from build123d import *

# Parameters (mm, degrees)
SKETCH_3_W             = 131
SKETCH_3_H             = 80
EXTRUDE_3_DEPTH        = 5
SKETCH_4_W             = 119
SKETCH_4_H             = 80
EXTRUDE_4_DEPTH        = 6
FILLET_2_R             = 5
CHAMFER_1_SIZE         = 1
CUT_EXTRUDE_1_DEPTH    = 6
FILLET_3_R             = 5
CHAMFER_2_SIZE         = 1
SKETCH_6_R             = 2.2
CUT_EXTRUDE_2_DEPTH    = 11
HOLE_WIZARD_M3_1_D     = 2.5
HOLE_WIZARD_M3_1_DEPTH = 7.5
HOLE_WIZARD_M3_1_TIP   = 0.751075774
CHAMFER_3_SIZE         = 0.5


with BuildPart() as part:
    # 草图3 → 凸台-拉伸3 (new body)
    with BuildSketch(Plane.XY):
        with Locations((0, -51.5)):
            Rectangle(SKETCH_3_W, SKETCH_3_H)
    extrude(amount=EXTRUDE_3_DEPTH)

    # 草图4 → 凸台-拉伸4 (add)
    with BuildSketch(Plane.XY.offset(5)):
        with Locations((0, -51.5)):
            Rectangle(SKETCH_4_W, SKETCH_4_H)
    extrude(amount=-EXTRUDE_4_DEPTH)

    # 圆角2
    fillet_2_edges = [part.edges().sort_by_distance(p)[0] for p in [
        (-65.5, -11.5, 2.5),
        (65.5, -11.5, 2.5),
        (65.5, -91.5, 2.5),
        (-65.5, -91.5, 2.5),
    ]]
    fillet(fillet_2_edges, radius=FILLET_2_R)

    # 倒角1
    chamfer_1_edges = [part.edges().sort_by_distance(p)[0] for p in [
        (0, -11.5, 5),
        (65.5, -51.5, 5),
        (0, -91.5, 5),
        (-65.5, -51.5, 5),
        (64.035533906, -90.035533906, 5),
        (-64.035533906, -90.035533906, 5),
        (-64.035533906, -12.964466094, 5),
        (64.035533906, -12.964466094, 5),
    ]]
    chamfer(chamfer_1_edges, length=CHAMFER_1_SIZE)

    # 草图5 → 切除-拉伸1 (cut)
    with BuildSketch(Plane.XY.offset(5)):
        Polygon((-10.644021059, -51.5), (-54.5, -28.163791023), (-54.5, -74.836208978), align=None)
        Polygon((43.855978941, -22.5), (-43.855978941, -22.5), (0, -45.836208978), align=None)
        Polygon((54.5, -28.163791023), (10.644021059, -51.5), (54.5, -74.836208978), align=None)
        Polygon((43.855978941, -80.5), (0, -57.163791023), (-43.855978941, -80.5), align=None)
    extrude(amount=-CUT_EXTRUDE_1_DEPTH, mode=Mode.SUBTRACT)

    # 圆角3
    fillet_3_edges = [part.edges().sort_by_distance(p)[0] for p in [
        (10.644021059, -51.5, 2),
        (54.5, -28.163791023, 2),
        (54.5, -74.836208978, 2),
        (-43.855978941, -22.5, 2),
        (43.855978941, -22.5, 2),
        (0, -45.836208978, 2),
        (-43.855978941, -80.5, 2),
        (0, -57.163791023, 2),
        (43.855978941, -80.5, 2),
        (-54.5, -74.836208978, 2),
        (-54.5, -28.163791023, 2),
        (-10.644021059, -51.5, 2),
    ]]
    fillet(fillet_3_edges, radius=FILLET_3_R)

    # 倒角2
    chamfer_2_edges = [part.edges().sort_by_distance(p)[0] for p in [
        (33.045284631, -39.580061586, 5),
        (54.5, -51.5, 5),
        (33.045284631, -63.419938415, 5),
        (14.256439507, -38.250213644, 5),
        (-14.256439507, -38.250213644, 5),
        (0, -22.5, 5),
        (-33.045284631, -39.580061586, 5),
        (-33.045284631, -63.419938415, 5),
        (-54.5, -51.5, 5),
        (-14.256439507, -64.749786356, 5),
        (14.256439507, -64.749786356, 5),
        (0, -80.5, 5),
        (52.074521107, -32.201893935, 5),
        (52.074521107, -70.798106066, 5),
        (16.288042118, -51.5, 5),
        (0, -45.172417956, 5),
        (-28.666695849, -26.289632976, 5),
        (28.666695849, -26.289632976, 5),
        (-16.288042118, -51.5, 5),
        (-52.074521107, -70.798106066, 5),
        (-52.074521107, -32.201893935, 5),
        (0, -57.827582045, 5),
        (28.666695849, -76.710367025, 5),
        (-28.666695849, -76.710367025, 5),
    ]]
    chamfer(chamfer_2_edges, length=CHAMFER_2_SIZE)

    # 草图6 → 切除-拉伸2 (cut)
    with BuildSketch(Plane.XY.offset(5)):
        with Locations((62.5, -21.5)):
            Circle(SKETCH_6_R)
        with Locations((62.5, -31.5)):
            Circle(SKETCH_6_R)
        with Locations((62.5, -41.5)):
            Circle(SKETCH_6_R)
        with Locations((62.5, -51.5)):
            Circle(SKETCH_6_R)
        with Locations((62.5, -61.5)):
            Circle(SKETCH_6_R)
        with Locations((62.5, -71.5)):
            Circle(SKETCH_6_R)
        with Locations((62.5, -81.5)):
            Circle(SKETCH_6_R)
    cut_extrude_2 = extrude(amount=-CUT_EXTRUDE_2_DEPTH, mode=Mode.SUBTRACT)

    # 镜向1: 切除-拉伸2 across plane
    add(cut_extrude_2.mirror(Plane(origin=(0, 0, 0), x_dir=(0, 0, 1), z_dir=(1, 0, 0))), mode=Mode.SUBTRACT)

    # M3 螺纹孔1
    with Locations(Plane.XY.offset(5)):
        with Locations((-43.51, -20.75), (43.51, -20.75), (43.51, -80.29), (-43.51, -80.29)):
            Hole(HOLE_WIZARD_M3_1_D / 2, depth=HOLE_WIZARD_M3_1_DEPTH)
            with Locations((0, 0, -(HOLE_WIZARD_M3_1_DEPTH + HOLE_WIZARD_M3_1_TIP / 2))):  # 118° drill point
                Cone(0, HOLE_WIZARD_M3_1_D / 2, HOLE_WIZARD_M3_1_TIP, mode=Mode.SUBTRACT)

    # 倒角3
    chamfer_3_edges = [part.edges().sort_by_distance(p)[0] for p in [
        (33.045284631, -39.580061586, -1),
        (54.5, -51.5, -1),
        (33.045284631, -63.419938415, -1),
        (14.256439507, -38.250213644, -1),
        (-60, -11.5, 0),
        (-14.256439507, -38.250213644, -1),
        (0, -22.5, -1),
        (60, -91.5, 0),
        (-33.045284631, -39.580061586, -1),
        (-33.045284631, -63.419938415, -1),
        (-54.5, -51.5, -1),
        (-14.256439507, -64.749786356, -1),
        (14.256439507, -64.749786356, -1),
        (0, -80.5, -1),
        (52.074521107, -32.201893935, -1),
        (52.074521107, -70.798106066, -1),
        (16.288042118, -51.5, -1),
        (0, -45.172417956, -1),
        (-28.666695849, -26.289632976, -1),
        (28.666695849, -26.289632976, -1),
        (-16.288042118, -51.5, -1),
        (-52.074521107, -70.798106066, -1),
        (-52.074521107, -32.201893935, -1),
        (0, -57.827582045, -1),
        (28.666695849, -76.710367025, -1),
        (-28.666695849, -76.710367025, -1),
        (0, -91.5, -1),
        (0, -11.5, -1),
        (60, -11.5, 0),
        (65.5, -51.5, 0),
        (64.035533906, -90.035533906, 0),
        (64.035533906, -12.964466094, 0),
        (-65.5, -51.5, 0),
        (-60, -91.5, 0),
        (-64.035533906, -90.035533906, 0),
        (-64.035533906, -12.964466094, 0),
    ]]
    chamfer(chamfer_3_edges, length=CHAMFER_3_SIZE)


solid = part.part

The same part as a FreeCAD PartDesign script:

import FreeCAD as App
import Part
import Sketcher
from FreeCAD import Vector


def edges_at(feature, points):
    """Names of the edges that pass closest to the given points."""
    edges = feature.Shape.Edges
    near = lambda p: min(range(len(edges)), key=lambda i: edges[i].distToShape(Part.Vertex(*p))[0])
    return sorted({f"Edge{near(p) + 1}" for p in points})


def add_polygon(sketch, points):
    """Adds a closed chain of lines whose ends are joined by coincident constraints."""
    first, n = sketch.GeometryCount, len(points)
    for a, b in zip(points, points[1:] + points[:1]):
        sketch.addGeometry(Part.LineSegment(App.Vector(*a, 0), App.Vector(*b, 0)), False)
    for i in range(n):
        sketch.addConstraint(Sketcher.Constraint("Coincident", first + i, 2, first + (i + 1) % n, 1))

doc = App.newDocument("Part")
body = doc.addObject("PartDesign::Body", "Body")

# Sketch on XY plane
sketch1 = doc.addObject("Sketcher::SketchObject", "Sketch")
body.addObject(sketch1)
sketch1.AttachmentSupport = (doc.XY_Plane, [""])
sketch1.MapMode = "FlatFace"
add_polygon(sketch1, [(-66, -12), (-66, -92), (66, -92), (66, -12)])  # lines 0-3
sketch1.addConstraint([
    Sketcher.Constraint("Vertical", 0),
    Sketcher.Constraint("Horizontal", 1),
    Sketcher.Constraint("Vertical", 2),
    Sketcher.Constraint("Horizontal", 3),
    Sketcher.Constraint("DistanceX", 1, 1, 1, 2, 131.0),
    Sketcher.Constraint("DistanceY", 0, 2, 0, 1, 80.0),
    Sketcher.Constraint("DistanceX", 0, 2, -1, 1, 65.5),
    Sketcher.Constraint("DistanceY", 0, 2, -1, 1, 91.5),
])
pad1 = doc.addObject("PartDesign::Pad", "Pad")
body.addObject(pad1)
pad1.Profile = sketch1
pad1.Length = 5

# Sketch on XY plane
sketch2 = doc.addObject("Sketcher::SketchObject", "Sketch001")
body.addObject(sketch2)
sketch2.AttachmentSupport = (doc.XY_Plane, [""])
sketch2.MapMode = "FlatFace"
sketch2.AttachmentOffset = App.Placement(Vector(0, 0, 5), App.Rotation())
add_polygon(sketch2, [(-60, -12), (-60, -92), (60, -92), (60, -12)])  # lines 0-3
sketch2.addConstraint([
    Sketcher.Constraint("Vertical", 0),
    Sketcher.Constraint("Horizontal", 1),
    Sketcher.Constraint("Vertical", 2),
    Sketcher.Constraint("Horizontal", 3),
    Sketcher.Constraint("DistanceX", 1, 1, 1, 2, 119.0),
    Sketcher.Constraint("DistanceY", 0, 2, 0, 1, 80.0),
    Sketcher.Constraint("DistanceX", 0, 2, -1, 1, 59.5),
    Sketcher.Constraint("DistanceY", 0, 2, -1, 1, 91.5),
])
pad2 = doc.addObject("PartDesign::Pad", "Pad001")
body.addObject(pad2)
pad2.Profile = sketch2
pad2.Length = 6
pad2.Reversed = True
doc.recompute()

fillet = doc.addObject("PartDesign::Fillet", "Fillet")
body.addObject(fillet)
fillet.Base = (pad2, edges_at(pad2, [
    (-65.5, -11.5, 2.5),
    (65.5, -11.5, 2.5),
    (65.5, -91.5, 2.5),
    (-65.5, -91.5, 2.5),
]))
fillet.Radius = 5
doc.recompute()

chamfer = doc.addObject("PartDesign::Chamfer", "Chamfer")
body.addObject(chamfer)
chamfer.Base = (fillet, edges_at(fillet, [
    (0, -11.5, 5),
    (65.5, -51.5, 5),
    (0, -91.5, 5),
    (-65.5, -51.5, 5),
    (64.036, -90.036, 5),
    (-64.036, -90.036, 5),
    (-64.036, -12.964, 5),
    (64.036, -12.964, 5),
]))
chamfer.Size = 1

# Sketch on XY plane
sketch3 = doc.addObject("Sketcher::SketchObject", "Sketch002")
body.addObject(sketch3)
sketch3.AttachmentSupport = (doc.XY_Plane, [""])
sketch3.MapMode = "FlatFace"
sketch3.AttachmentOffset = App.Placement(Vector(0, 0, 5), App.Rotation())
add_polygon(sketch3, [(-11, -52), (-54, -28), (-54, -75)])  # lines 0-2
add_polygon(sketch3, [(44, -22), (-44, -22), (0, -46)])  # lines 3-5
add_polygon(sketch3, [(54, -28), (11, -52), (54, -75)])  # lines 6-8
add_polygon(sketch3, [(44, -80), (0, -57), (-44, -80)])  # lines 9-11
sketch3.addConstraint([
    Sketcher.Constraint("Vertical", 1),
    Sketcher.Constraint("Horizontal", 3),
    Sketcher.Constraint("Vertical", 8),
    Sketcher.Constraint("Horizontal", 11),
    Sketcher.Constraint("Symmetric", 2, 2, 6, 2, -2),
    Sketcher.Constraint("Symmetric", 1, 2, 7, 2, -2),
    Sketcher.Constraint("PointOnObject", 4, 2, -2),
    Sketcher.Constraint("PointOnObject", 9, 2, -2),
    Sketcher.Constraint("Parallel", 0, 4),
    Sketcher.Constraint("Parallel", 2, 5),
    Sketcher.Constraint("Parallel", 5, 6),
    Sketcher.Constraint("Parallel", 4, 7),
    Sketcher.Constraint("Parallel", 7, 9),
    Sketcher.Constraint("Parallel", 6, 10),
    Sketcher.Constraint("Vertical", 3, 2, 10, 2),
    Sketcher.Constraint("Equal", 2, 4),
    Sketcher.Constraint("DistanceY", 2, 2, 3, 2, 29.0),
    Sketcher.Constraint("DistanceX", 1, 2, 7, 2, 109.0),
    Sketcher.Constraint("DistanceY", 10, 2, 2, 2, 29.0),
    Sketcher.Constraint("DistanceY", 2, 2, -1, 1, 51.5),
    Sketcher.Constraint("Distance", 0, 49.67822),
    Sketcher.Constraint("DistanceX", 3, 2, 3, 1, 87.711958),
])
pocket1 = doc.addObject("PartDesign::Pocket", "Pocket")
body.addObject(pocket1)
pocket1.Profile = sketch3
pocket1.Length = 6
doc.recompute()

fillet2 = doc.addObject("PartDesign::Fillet", "Fillet001")
body.addObject(fillet2)
fillet2.Base = (pocket1, edges_at(pocket1, [
    (10.644, -51.5, 2),
    (54.5, -28.164, 2),
    (54.5, -74.836, 2),
    (-43.856, -22.5, 2),
    (43.856, -22.5, 2),
    (0, -45.836, 2),
    (-43.856, -80.5, 2),
    (0, -57.164, 2),
    (43.856, -80.5, 2),
    (-54.5, -74.836, 2),
    (-54.5, -28.164, 2),
    (-10.644, -51.5, 2),
]))
fillet2.Radius = 5
doc.recompute()

chamfer2 = doc.addObject("PartDesign::Chamfer", "Chamfer001")
body.addObject(chamfer2)
chamfer2.Base = (fillet2, edges_at(fillet2, [
    (33.045, -39.58, 5),
    (54.5, -51.5, 5),
    (33.045, -63.42, 5),
    (14.256, -38.25, 5),
    (-14.256, -38.25, 5),
    (0, -22.5, 5),
    (-33.045, -39.58, 5),
    (-33.045, -63.42, 5),
    (-54.5, -51.5, 5),
    (-14.256, -64.75, 5),
    (14.256, -64.75, 5),
    (0, -80.5, 5),
    (52.075, -32.202, 5),
    (52.075, -70.798, 5),
    (16.288, -51.5, 5),
    (0, -45.172, 5),
    (-28.667, -26.29, 5),
    (28.667, -26.29, 5),
    (-16.288, -51.5, 5),
    (-52.075, -70.798, 5),
    (-52.075, -32.202, 5),
    (0, -57.828, 5),
    (28.667, -76.71, 5),
    (-28.667, -76.71, 5),
]))
chamfer2.Size = 1

# Sketch on XY plane
sketch4 = doc.addObject("Sketcher::SketchObject", "Sketch003")
body.addObject(sketch4)
sketch4.AttachmentSupport = (doc.XY_Plane, [""])
sketch4.MapMode = "FlatFace"
sketch4.AttachmentOffset = App.Placement(Vector(0, 0, 5), App.Rotation())
sketch4.addGeometry([
    Part.Circle(Vector(62.5, -21.5, 0), Vector(0, 0, 1), 2.2),  # 0
    Part.Circle(Vector(62.5, -31.5, 0), Vector(0, 0, 1), 2.2),  # 1
    Part.Circle(Vector(62.5, -41.5, 0), Vector(0, 0, 1), 2.2),  # 2
    Part.Circle(Vector(62.5, -51.5, 0), Vector(0, 0, 1), 2.2),  # 3
    Part.Circle(Vector(62.5, -61.5, 0), Vector(0, 0, 1), 2.2),  # 4
    Part.Circle(Vector(62.5, -71.5, 0), Vector(0, 0, 1), 2.2),  # 5
    Part.Circle(Vector(62.5, -81.5, 0), Vector(0, 0, 1), 2.2),  # 6
], False)
sketch4.addConstraint([
    Sketcher.Constraint("Equal", 0, 1),
    Sketcher.Constraint("Equal", 1, 2),
    Sketcher.Constraint("Equal", 2, 3),
    Sketcher.Constraint("Equal", 3, 4),
    Sketcher.Constraint("Equal", 4, 5),
    Sketcher.Constraint("Equal", 5, 6),
    Sketcher.Constraint("Vertical", 0, 3, 1, 3),
    Sketcher.Constraint("Vertical", 1, 3, 2, 3),
    Sketcher.Constraint("Vertical", 2, 3, 3, 3),
    Sketcher.Constraint("Vertical", 3, 3, 4, 3),
    Sketcher.Constraint("Vertical", 4, 3, 5, 3),
    Sketcher.Constraint("Vertical", 5, 3, 6, 3),
    Sketcher.Constraint("Diameter", 0, 4.4),
    Sketcher.Constraint("DistanceY", 1, 3, 0, 3, 10.0),
    Sketcher.Constraint("DistanceY", 2, 3, 1, 3, 10.0),
    Sketcher.Constraint("DistanceY", 3, 3, 2, 3, 10.0),
    Sketcher.Constraint("DistanceY", 4, 3, 3, 3, 10.0),
    Sketcher.Constraint("DistanceY", 5, 3, 4, 3, 10.0),
    Sketcher.Constraint("DistanceY", 6, 3, 5, 3, 10.0),
    Sketcher.Constraint("DistanceX", -1, 1, 0, 3, 62.5),
    Sketcher.Constraint("DistanceY", 0, 3, -1, 1, 21.5),
])
pocket2 = doc.addObject("PartDesign::Pocket", "Pocket001")
body.addObject(pocket2)
pocket2.Profile = sketch4
pocket2.Length = 11
doc.recompute()

mirrored = doc.addObject("PartDesign::Mirrored", "Mirrored")
body.addObject(mirrored)
mirrored.Originals = [pocket2]
mirrored.MirrorPlane = (doc.YZ_Plane, [""])
body.Tip = mirrored

# Sketch on XY plane
sketch5 = doc.addObject("Sketcher::SketchObject", "Sketch004")
body.addObject(sketch5)
sketch5.AttachmentSupport = (doc.XY_Plane, [""])
sketch5.MapMode = "FlatFace"
sketch5.AttachmentOffset = App.Placement(Vector(0, 0, 5), App.Rotation())
sketch5.addGeometry([
    Part.Circle(Vector(-43.5, -20.8, 0), Vector(0, 0, 1), 1.2),
    Part.Circle(Vector(43.5, -20.8, 0), Vector(0, 0, 1), 1.2),
    Part.Circle(Vector(43.5, -80.3, 0), Vector(0, 0, 1), 1.2),
    Part.Circle(Vector(-43.5, -80.3, 0), Vector(0, 0, 1), 1.2),
], False)
sketch5.addConstraint([
    Sketcher.Constraint("Equal", 0, 1),
    Sketcher.Constraint("Equal", 1, 2),
    Sketcher.Constraint("Equal", 2, 3),
    Sketcher.Constraint("Symmetric", 0, 3, 1, 3, -2),
    Sketcher.Constraint("Symmetric", 2, 3, 3, 3, -2),
    Sketcher.Constraint("Vertical", 1, 3, 2, 3),
    Sketcher.Constraint("Diameter", 0, 2.5),
    Sketcher.Constraint("DistanceX", 0, 3, -1, 1, 43.51),
    Sketcher.Constraint("DistanceY", 0, 3, -1, 1, 20.75),
    Sketcher.Constraint("DistanceY", 2, 3, -1, 1, 80.29),
])
doc.recompute()
hole = doc.addObject("PartDesign::Hole", "Hole")
body.addObject(hole)
hole.Profile = sketch5
hole.ThreadType = "None"
hole.Diameter = 2.5
hole.DepthType = "Dimension"
hole.Depth = 7.5
hole.DrillPoint = "Angled"
hole.DrillPointAngle = 118
doc.recompute()

chamfer3 = doc.addObject("PartDesign::Chamfer", "Chamfer002")
body.addObject(chamfer3)
chamfer3.Base = (hole, edges_at(hole, [
    (33.045, -39.58, -1),
    (54.5, -51.5, -1),
    (33.045, -63.42, -1),
    (14.256, -38.25, -1),
    (-60, -11.5, 0),
    (-14.256, -38.25, -1),
    (0, -22.5, -1),
    (60, -91.5, 0),
    (-33.045, -39.58, -1),
    (-33.045, -63.42, -1),
    (-54.5, -51.5, -1),
    (-14.256, -64.75, -1),
    (14.256, -64.75, -1),
    (0, -80.5, -1),
    (52.075, -32.202, -1),
    (52.075, -70.798, -1),
    (16.288, -51.5, -1),
    (0, -45.172, -1),
    (-28.667, -26.29, -1),
    (28.667, -26.29, -1),
    (-16.288, -51.5, -1),
    (-52.075, -70.798, -1),
    (-52.075, -32.202, -1),
    (0, -57.828, -1),
    (28.667, -76.71, -1),
    (-28.667, -76.71, -1),
    (0, -91.5, -1),
    (0, -11.5, -1),
    (60, -11.5, 0),
    (65.5, -51.5, 0),
    (64.036, -90.036, 0),
    (64.036, -12.964, 0),
    (-65.5, -51.5, 0),
    (-60, -91.5, 0),
    (-64.036, -90.036, 0),
    (-64.036, -12.964, 0),
]))
chamfer3.Size = 0.5

doc.recompute()
